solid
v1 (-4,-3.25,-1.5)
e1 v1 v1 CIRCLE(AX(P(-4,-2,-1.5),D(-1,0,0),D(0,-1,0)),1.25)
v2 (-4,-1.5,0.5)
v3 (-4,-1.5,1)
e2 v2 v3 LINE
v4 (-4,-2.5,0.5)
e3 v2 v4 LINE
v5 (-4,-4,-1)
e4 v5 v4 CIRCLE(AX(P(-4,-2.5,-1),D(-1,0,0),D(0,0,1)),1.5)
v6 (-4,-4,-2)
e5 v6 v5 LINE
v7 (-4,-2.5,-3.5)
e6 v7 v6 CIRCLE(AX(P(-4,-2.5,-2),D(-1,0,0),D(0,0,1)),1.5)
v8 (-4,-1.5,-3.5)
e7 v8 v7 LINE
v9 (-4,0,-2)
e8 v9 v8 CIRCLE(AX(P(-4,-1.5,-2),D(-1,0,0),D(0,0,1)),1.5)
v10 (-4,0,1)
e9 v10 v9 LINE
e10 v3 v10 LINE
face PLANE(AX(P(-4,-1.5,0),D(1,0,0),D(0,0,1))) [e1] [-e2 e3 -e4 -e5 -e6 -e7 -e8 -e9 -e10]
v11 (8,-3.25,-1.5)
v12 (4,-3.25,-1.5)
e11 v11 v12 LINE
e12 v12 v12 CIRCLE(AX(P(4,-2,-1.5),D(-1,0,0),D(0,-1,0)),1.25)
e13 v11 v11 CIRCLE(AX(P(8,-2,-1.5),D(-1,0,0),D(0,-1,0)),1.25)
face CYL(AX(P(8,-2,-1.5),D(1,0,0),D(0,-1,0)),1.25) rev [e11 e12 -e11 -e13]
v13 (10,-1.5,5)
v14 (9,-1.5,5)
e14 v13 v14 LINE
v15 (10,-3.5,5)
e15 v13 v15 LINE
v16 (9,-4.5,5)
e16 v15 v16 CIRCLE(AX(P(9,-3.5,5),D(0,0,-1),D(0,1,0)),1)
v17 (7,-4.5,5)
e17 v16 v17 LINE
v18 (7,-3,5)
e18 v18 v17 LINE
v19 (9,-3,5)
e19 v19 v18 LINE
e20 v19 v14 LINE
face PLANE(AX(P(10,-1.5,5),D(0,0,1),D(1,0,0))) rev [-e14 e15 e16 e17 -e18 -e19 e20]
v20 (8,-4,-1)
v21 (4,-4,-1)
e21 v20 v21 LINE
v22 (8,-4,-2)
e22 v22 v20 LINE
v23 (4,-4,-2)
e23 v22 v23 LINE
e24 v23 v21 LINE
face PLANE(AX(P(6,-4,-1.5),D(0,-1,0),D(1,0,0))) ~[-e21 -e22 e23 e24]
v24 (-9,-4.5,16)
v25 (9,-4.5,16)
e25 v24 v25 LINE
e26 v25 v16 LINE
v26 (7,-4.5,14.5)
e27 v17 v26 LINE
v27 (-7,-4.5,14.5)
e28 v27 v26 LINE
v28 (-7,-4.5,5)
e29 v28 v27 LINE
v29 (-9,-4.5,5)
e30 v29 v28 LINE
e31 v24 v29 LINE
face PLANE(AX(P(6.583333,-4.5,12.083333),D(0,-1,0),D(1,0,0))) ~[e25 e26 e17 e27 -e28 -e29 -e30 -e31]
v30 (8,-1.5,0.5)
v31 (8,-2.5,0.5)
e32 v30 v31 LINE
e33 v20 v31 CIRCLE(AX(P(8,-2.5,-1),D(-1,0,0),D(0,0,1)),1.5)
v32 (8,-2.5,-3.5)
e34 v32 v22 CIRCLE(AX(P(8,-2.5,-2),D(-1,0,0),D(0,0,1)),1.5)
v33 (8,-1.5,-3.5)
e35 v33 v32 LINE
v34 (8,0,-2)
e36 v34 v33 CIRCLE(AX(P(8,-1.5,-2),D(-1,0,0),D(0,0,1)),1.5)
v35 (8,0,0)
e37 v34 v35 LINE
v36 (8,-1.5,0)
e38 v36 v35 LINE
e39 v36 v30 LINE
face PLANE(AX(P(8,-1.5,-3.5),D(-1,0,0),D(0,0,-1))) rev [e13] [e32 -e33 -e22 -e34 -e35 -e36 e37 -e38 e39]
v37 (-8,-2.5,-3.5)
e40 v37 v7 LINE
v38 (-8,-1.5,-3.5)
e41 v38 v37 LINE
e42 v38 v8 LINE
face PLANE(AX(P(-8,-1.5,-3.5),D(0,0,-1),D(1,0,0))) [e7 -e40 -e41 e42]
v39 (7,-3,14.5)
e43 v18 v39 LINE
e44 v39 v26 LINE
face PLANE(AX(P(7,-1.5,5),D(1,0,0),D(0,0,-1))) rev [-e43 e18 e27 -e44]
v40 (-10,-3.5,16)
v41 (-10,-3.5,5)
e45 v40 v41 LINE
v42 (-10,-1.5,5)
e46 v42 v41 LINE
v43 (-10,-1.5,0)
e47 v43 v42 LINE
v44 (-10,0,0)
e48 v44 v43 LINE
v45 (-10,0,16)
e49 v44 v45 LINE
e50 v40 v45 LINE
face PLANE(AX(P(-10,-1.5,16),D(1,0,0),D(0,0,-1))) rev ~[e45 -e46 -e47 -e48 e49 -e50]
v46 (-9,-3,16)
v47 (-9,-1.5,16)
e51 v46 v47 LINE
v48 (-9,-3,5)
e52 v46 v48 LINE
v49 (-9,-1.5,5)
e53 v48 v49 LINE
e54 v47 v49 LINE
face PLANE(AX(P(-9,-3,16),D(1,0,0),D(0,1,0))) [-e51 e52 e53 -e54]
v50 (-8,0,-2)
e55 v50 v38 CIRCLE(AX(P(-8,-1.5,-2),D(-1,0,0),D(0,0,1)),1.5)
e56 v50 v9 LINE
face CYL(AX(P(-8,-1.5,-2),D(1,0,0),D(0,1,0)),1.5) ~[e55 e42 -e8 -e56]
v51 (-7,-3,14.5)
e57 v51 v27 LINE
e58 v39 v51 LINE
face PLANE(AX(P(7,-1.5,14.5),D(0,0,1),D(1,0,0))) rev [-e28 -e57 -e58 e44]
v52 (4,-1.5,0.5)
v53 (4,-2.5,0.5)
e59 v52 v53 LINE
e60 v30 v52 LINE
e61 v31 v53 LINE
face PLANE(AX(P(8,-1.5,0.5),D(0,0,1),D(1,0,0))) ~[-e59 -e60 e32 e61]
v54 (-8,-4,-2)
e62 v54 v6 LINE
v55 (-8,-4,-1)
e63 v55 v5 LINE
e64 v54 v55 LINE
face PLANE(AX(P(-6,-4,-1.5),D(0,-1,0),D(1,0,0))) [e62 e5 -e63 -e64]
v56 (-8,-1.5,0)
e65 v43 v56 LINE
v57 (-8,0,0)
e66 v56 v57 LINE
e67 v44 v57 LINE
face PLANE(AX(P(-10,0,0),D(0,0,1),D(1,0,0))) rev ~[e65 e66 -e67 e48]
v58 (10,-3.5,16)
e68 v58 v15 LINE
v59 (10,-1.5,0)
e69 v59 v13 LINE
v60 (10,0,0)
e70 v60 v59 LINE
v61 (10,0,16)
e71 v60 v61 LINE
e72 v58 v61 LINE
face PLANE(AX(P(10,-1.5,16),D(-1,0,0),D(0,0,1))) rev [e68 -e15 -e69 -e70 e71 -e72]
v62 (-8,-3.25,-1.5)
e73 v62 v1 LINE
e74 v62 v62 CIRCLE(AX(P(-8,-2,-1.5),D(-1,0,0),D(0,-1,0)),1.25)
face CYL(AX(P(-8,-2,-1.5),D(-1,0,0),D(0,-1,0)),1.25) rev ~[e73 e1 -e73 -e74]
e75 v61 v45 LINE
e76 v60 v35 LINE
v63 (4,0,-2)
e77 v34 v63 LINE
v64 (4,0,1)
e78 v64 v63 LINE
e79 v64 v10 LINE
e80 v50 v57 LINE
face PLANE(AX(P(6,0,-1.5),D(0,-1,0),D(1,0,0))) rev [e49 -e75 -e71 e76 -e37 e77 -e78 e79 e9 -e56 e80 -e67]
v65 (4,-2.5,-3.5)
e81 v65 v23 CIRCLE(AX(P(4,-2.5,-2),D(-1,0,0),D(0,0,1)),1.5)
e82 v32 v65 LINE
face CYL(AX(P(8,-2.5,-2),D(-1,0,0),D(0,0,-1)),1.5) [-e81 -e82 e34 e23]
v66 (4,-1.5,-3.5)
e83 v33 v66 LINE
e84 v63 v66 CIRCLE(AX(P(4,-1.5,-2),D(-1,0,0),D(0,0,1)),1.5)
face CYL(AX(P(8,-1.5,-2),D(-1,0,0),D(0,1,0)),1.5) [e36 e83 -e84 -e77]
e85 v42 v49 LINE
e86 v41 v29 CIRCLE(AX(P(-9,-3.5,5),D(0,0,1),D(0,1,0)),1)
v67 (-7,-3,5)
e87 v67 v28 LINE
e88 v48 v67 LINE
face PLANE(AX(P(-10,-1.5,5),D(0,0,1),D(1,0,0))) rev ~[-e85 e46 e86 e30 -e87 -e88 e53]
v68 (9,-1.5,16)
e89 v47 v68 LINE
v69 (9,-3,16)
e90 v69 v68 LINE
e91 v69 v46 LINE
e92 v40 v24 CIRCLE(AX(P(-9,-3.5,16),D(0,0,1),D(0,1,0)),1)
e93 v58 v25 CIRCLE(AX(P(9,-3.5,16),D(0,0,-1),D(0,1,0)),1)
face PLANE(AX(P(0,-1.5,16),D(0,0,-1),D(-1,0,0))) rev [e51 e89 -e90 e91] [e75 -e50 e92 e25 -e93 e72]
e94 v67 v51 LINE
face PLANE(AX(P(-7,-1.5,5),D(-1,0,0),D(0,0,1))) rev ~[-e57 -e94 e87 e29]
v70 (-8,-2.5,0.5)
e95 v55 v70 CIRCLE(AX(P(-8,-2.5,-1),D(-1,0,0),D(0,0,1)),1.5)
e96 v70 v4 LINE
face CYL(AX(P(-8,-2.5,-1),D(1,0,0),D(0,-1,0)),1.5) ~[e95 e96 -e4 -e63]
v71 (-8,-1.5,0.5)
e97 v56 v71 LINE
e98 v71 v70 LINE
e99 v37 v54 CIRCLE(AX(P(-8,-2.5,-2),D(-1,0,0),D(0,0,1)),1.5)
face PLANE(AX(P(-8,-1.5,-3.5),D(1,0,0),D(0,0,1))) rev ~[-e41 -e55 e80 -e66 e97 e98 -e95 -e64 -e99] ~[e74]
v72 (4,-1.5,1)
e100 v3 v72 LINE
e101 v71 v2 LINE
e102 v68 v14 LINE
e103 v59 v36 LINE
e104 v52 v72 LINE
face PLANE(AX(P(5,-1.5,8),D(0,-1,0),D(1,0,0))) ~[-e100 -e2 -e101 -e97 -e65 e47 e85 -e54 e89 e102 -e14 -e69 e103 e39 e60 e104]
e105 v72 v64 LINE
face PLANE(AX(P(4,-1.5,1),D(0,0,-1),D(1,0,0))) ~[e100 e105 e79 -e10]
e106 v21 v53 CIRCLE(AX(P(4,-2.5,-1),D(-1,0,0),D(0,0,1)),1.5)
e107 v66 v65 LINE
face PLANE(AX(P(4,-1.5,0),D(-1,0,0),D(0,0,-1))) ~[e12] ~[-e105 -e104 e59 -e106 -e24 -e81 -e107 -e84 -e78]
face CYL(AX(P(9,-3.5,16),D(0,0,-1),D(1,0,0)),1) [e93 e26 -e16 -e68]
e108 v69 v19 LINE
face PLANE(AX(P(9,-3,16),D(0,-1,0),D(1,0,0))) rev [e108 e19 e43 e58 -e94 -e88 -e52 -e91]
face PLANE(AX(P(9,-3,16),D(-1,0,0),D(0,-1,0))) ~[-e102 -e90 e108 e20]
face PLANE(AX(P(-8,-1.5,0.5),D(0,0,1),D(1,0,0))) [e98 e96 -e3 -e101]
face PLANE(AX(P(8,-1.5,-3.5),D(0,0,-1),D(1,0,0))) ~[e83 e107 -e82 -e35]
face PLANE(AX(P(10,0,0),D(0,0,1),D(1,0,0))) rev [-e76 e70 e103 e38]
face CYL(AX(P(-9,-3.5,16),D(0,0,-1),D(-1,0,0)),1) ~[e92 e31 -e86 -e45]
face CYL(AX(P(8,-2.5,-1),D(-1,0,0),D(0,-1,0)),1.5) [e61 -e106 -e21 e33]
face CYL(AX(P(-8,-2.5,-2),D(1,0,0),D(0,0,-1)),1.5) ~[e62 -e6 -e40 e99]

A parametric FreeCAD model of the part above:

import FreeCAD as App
import Part
import Sketcher

V = App.Vector
Q = App.Units.Quantity


def edges_at(feature, points):
    """Names of the edges that pass closest to the given points."""
    edges = feature.Shape.Edges
    near = lambda p: min(range(len(edges)), key=lambda i: edges[i].distToShape(Part.Vertex(*p))[0])
    return sorted({f"Edge{near(p) + 1}" for p in points})


def add_polygon(sketch, points):
    """Adds a closed chain of lines whose ends are joined by coincident constraints."""
    first, n = sketch.GeometryCount, len(points)
    for a, b in zip(points, points[1:] + points[:1]):
        sketch.addGeometry(Part.LineSegment(App.Vector(*a, 0), App.Vector(*b, 0)), False)
    for i in range(n):
        sketch.addConstraint(Sketcher.Constraint("Coincident", first + i, 2, first + (i + 1) % n, 1))

doc = App.newDocument("Part")
body = doc.addObject("PartDesign::Body", "Body")

# Sketch on XZ plane
sketch1 = body.newObject("Sketcher::SketchObject", "Sketch")
sketch1.AttachmentSupport = (doc.getObject("XZ_Plane"), [""])
sketch1.MapMode = "FlatFace"
add_polygon(sketch1, [(-10, 16), (-10, 0), (0, 0), (0, 16)])  # lines 0-3
sketch1.addConstraint([
    Sketcher.Constraint("Vertical", 0),
    Sketcher.Constraint("Horizontal", 1),
    Sketcher.Constraint("Vertical", 2),
    Sketcher.Constraint("Horizontal", 3),
    Sketcher.Constraint("Coincident", 1, 2, -1, 1),
    Sketcher.Constraint("DistanceX", 1, 1, 1, 2, Q("10 mm")),
    Sketcher.Constraint("DistanceY", 0, 2, 0, 1, Q("16 mm")),
])
pad1 = body.newObject("PartDesign::Pad", "Pad")
pad1.Profile = sketch1
pad1.Length = 1.5

# Sketch on XZ plane
sketch2 = body.newObject("Sketcher::SketchObject", "Sketch001")
sketch2.AttachmentSupport = (doc.getObject("XZ_Plane"), [""])
sketch2.MapMode = "FlatFace"
sketch2.AttachmentOffset = App.Placement(V(0, 0, 1.5), App.Rotation())
add_polygon(sketch2, [(-8, 0.5), (-8, -3.5), (-4, -3.5), (-4, 0.5)])  # lines 0-3
sketch2.addConstraint([
    Sketcher.Constraint("Vertical", 0),
    Sketcher.Constraint("Horizontal", 1),
    Sketcher.Constraint("Vertical", 2),
    Sketcher.Constraint("Horizontal", 3),
    Sketcher.Constraint("Equal", 3, 0),
    Sketcher.Constraint("DistanceX", 1, 1, 1, 2, Q("4 mm")),
    Sketcher.Constraint("DistanceX", 0, 2, -1, 1, Q("8 mm")),
    Sketcher.Constraint("DistanceY", 0, 2, -1, 1, Q("3.5 mm")),
])
pad2 = body.newObject("PartDesign::Pad", "Pad001")
pad2.Profile = sketch2
pad2.Type = "TwoLengths"
pad2.Length = 2.5
pad2.Length2 = 1.5
doc.recompute()

fillet = body.newObject("PartDesign::Fillet", "Fillet")
fillet.Base = (pad2, edges_at(pad2, [(-6, 0, -3.5), (-6, -4, -3.5), (-6, -4, 0.5)]))
fillet.Radius = 1.5

# Sketch on YZ plane
sketch3 = body.newObject("Sketcher::SketchObject", "Sketch002")
sketch3.AttachmentSupport = (doc.getObject("YZ_Plane"), [""])
sketch3.MapMode = "FlatFace"
sketch3.AttachmentOffset = App.Placement(V(0, 0, -8), App.Rotation())
sketch3.addGeometry(Part.Circle(V(-2, -1.5, 0), V(0, 0, 1), 1.2), False)
sketch3.addConstraint([
    Sketcher.Constraint("Diameter", 0, Q("2.5 mm")),
    Sketcher.Constraint("DistanceX", 0, 3, -1, 1, Q("2 mm")),
    Sketcher.Constraint("DistanceY", 0, 3, -1, 1, Q("1.5 mm")),
])
pocket1 = body.newObject("PartDesign::Pocket", "Pocket")
pocket1.Profile = sketch3
pocket1.Type = "ThroughAll"
pocket1.Reversed = True

# Sketch on XZ plane
sketch4 = body.newObject("Sketcher::SketchObject", "Sketch003")
sketch4.AttachmentSupport = (doc.getObject("XZ_Plane"), [""])
sketch4.MapMode = "FlatFace"
sketch4.AttachmentOffset = App.Placement(V(0, 0, 1.5), App.Rotation())
add_polygon(sketch4, [(-10, 16), (-10, 5), (-7, 5), (-7, 14.5), (0, 14.5), (0, 16)])  # lines 0-5
sketch4.addConstraint([
    Sketcher.Constraint("Vertical", 0),
    Sketcher.Constraint("Horizontal", 1),
    Sketcher.Constraint("Vertical", 2),
    Sketcher.Constraint("Horizontal", 3),
    Sketcher.Constraint("Vertical", 4),
    Sketcher.Constraint("Horizontal", 5),
    Sketcher.Constraint("PointOnObject", 3, 2, -2),
    Sketcher.Constraint("DistanceX", 1, 1, 1, 2, Q("3 mm")),
    Sketcher.Constraint("DistanceX", 3, 1, 3, 2, Q("7 mm")),
    Sketcher.Constraint("DistanceY", 0, 2, 0, 1, Q("11 mm")),
    Sketcher.Constraint("DistanceY", 2, 1, 2, 2, Q("9.5 mm")),
    Sketcher.Constraint("DistanceY", -1, 1, 0, 2, Q("5 mm")),
])
pad3 = body.newObject("PartDesign::Pad", "Pad002")
pad3.Profile = sketch4
pad3.Length = 3
doc.recompute()

fillet2 = body.newObject("PartDesign::Fillet", "Fillet001")
fillet2.Base = (pad3, edges_at(pad3, [(-10, -4.5, 10.5)]))
fillet2.Radius = 1

# Sketch on XY plane
sketch5 = body.newObject("Sketcher::SketchObject", "Sketch004")
sketch5.AttachmentSupport = (doc.getObject("XY_Plane"), [""])
sketch5.MapMode = "FlatFace"
sketch5.AttachmentOffset = App.Placement(V(0, 0, 16), App.Rotation())
add_polygon(sketch5, [(-9, -1.5), (-9, -3), (0, -3), (0, -1.5)])  # lines 0-3
sketch5.addConstraint([
    Sketcher.Constraint("Vertical", 0),
    Sketcher.Constraint("Horizontal", 1),
    Sketcher.Constraint("Vertical", 2),
    Sketcher.Constraint("Horizontal", 3),
    Sketcher.Constraint("PointOnObject", 1, 2, -2),
    Sketcher.Constraint("DistanceX", 1, 1, 1, 2, Q("9 mm")),
    Sketcher.Constraint("DistanceY", 0, 2, 0, 1, Q("1.5 mm")),
    Sketcher.Constraint("DistanceY", 0, 2, -1, 1, Q("3 mm")),
])
pocket2 = body.newObject("PartDesign::Pocket", "Pocket001")
pocket2.Profile = sketch5
pocket2.Length = 11.001

# Sketch on XZ plane
sketch6 = body.newObject("Sketcher::SketchObject", "Sketch005")
sketch6.AttachmentSupport = (doc.getObject("XZ_Plane"), [""])
sketch6.MapMode = "FlatFace"
sketch6.AttachmentOffset = App.Placement(V(0, 0, 1.5), App.Rotation())
add_polygon(sketch6, [(-4, 1), (-4, 0), (0, 0), (0, 1)])  # lines 0-3
sketch6.addConstraint([
    Sketcher.Constraint("Vertical", 0),
    Sketcher.Constraint("Horizontal", 1),
    Sketcher.Constraint("Vertical", 2),
    Sketcher.Constraint("Horizontal", 3),
    Sketcher.Constraint("Coincident", 1, 2, -1, 1),
    Sketcher.Constraint("DistanceX", 1, 1, 1, 2, Q("4 mm")),
    Sketcher.Constraint("DistanceY", 0, 2, 0, 1, Q("1 mm")),
])
pocket3 = body.newObject("PartDesign::Pocket", "Pocket002")
pocket3.Profile = sketch6
pocket3.Length = 1.5
body2 = doc.addObject("PartDesign::Body", "Body001")
doc.recompute()

body2.BaseFeature = body
doc.recompute()

mirroring = doc.addObject("Part::Mirroring", "Mirroring")
mirroring.Source = body
mirroring.Base = V(0, 0, 0)
mirroring.Normal = V(1, 0, 0)
body3 = doc.addObject("PartDesign::Body", "Body002")
body3.BaseFeature = mirroring
boolean = body2.newObject("PartDesign::Boolean", "Boolean")
boolean.Type = "Fuse"
boolean.addObjects([body3])
doc.recompute()
mirroring.Visibility = False

doc.recompute()
